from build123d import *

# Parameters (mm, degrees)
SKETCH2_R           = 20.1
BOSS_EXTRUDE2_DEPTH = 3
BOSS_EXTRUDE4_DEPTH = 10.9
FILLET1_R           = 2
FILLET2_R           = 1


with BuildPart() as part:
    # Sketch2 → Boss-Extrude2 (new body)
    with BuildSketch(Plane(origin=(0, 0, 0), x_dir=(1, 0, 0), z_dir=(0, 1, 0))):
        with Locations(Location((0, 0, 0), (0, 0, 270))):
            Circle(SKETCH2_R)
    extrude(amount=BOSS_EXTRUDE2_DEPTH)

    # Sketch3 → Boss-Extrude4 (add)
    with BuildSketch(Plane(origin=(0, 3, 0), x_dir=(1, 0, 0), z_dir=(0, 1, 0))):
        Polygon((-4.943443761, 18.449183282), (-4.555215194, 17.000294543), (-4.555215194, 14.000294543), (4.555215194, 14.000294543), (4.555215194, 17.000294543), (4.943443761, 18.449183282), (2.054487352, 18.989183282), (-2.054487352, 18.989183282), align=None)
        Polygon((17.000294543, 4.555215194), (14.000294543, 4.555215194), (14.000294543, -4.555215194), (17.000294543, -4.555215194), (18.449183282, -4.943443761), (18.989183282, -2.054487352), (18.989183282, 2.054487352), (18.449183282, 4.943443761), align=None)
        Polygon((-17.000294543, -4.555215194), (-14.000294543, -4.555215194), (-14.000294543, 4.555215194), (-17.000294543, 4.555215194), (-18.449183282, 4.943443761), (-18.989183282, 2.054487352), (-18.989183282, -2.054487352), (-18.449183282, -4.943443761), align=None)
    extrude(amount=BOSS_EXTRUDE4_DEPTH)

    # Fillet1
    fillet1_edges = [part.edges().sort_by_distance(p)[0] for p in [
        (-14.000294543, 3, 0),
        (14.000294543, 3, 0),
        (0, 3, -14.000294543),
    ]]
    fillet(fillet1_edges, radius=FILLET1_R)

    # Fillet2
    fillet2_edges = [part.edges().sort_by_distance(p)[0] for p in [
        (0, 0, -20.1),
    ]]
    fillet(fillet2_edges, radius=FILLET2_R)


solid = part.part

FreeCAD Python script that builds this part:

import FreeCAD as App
import Part
import Sketcher
Q = App.Units.Quantity


def edges_at(feature, points):
    """Names of the edges that pass closest to the given points."""
    edges = feature.Shape.Edges
    near = lambda p: min(range(len(edges)), key=lambda i: edges[i].distToShape(Part.Vertex(*p))[0])
    return sorted({f"Edge{near(p) + 1}" for p in points})


def add_polygon(sketch, points):
    """Adds a closed chain of lines whose ends are joined by coincident constraints."""
    first, n = sketch.GeometryCount, len(points)
    for a, b in zip(points, points[1:] + points[:1]):
        sketch.addGeometry(Part.LineSegment(App.Vector(*a, 0), App.Vector(*b, 0)), False)
    for i in range(n):
        sketch.addConstraint(Sketcher.Constraint("Coincident", first + i, 2, first + (i + 1) % n, 1))

doc = App.newDocument("Part")
body = doc.addObject("PartDesign::Body", "Body")

sketch1 = body.newObject("Sketcher::SketchObject", "Sketch")
sketch1.AttachmentSupport = (doc.getObject("XZ_Plane"), [""])
sketch1.MapMode = "FlatFace"
sketch1.addGeometry(Part.Circle(App.Vector(0, 0, 0), App.Vector(0, 0, 1), 20.1), False)
sketch1.addConstraint(Sketcher.Constraint("Coincident", 0, 3, -1, 1))
sketch1.addConstraint(Sketcher.Constraint("Diameter", 0, Q("40.2 mm")))
pad1 = body.newObject("PartDesign::Pad", "Pad")
pad1.Profile = sketch1
pad1.Length = 3
pad1.Reversed = True

sketch2 = body.newObject("Sketcher::SketchObject", "Sketch001")
sketch2.AttachmentSupport = (doc.getObject("XZ_Plane"), [""])
sketch2.MapMode = "FlatFace"
sketch2.AttachmentOffset = App.Placement(App.Vector(0, 0, -3), App.Rotation())
add_polygon(sketch2, [(-4.943444, -18.449183), (-4.555215, -17.000295), (-4.555215, -14.000295), (4.555215, -14.000295), (4.555215, -17.000295), (4.943444, -18.449183), (2.054487, -18.989183), (-2.054487, -18.989183)])
add_polygon(sketch2, [(17.000295, -4.555215), (14.000295, -4.555215), (14.000295, 4.555215), (17.000295, 4.555215), (18.449183, 4.943444), (18.989183, 2.054487), (18.989183, -2.054487), (18.449183, -4.943444)])
add_polygon(sketch2, [(-17.000295, 4.555215), (-14.000295, 4.555215), (-14.000295, -4.555215), (-17.000295, -4.555215), (-18.449183, -4.943444), (-18.989183, -2.054487), (-18.989183, 2.054487), (-18.449183, 4.943444)])
sketch2.addConstraint(Sketcher.Constraint("Vertical", 1))
sketch2.addConstraint(Sketcher.Constraint("Horizontal", 2))
sketch2.addConstraint(Sketcher.Constraint("Vertical", 3))
sketch2.addConstraint(Sketcher.Constraint("Horizontal", 6))
sketch2.addConstraint(Sketcher.Constraint("Horizontal", 8))
sketch2.addConstraint(Sketcher.Constraint("Vertical", 9))
sketch2.addConstraint(Sketcher.Constraint("Horizontal", 10))
sketch2.addConstraint(Sketcher.Constraint("Vertical", 13))
sketch2.addConstraint(Sketcher.Constraint("Horizontal", 16))
sketch2.addConstraint(Sketcher.Constraint("Vertical", 17))
sketch2.addConstraint(Sketcher.Constraint("Horizontal", 18))
sketch2.addConstraint(Sketcher.Constraint("Vertical", 21))
sketch2.addConstraint(Sketcher.Constraint("Symmetric", 8, 2, 16, 2, -1, 1))
sketch2.addConstraint(Sketcher.Constraint("Symmetric", 10, 2, 18, 2, -1, 1))
sketch2.addConstraint(Sketcher.Constraint("Symmetric", 11, 2, 19, 2, -1, 1))
sketch2.addConstraint(Sketcher.Constraint("Symmetric", 12, 2, 20, 2, -1, 1))
sketch2.addConstraint(Sketcher.Constraint("Symmetric", 14, 2, 22, 2, -1, 1))
sketch2.addConstraint(Sketcher.Constraint("Symmetric", 0, 2, 3, 2, -2))
sketch2.addConstraint(Sketcher.Constraint("Symmetric", 4, 2, 7, 2, -2))
sketch2.addConstraint(Sketcher.Constraint("Symmetric", 15, 2, 18, 2, -2))
sketch2.addConstraint(Sketcher.Constraint("Symmetric", 14, 2, 19, 2, -2))
sketch2.addConstraint(Sketcher.Constraint("Perpendicular", 4, 11))
sketch2.addConstraint(Sketcher.Constraint("Perpendicular", 5, 12))
sketch2.addConstraint(Sketcher.Constraint("Perpendicular", 7, 14))
sketch2.addConstraint(Sketcher.Constraint("Parallel", 14, 22))
sketch2.addConstraint(Sketcher.Constraint("Parallel", 15, 23))
sketch2.addConstraint(Sketcher.Constraint("Horizontal", 13, 2, 20, 2))
sketch2.addConstraint(Sketcher.Constraint("Equal", 18, 1))
sketch2.addConstraint(Sketcher.Constraint("Equal", 2, 9))
sketch2.addConstraint(Sketcher.Constraint("Equal", 6, 13))
sketch2.addConstraint(Sketcher.Constraint("Equal", 4, 11))
sketch2.addConstraint(Sketcher.Constraint("DistanceX", 8, 2, 8, 1, Q("3 mm")))
sketch2.addConstraint(Sketcher.Constraint("Angle", 0, Q("75 deg")))
sketch2.addConstraint(Sketcher.Constraint("Distance", 0, Q("1.5 mm")))
sketch2.addConstraint(Sketcher.Constraint("DistanceY", 5, 2, 4, 2, Q("0.54 mm")))
sketch2.addConstraint(Sketcher.Constraint("DistanceX", 2, 1, 2, 2, Q("9.11043 mm")))
sketch2.addConstraint(Sketcher.Constraint("DistanceY", 4, 2, 9, 2, Q("23.004398 mm")))
sketch2.addConstraint(Sketcher.Constraint("Distance", 5, Q("2.938991 mm")))
sketch2.addConstraint(Sketcher.Constraint("DistanceX", 2, 2, 8, 2, Q("9.445079 mm")))
pad2 = body.newObject("PartDesign::Pad", "Pad001")
pad2.Profile = sketch2
pad2.Length = 10.9
pad2.Reversed = True
doc.recompute()

fillet = body.newObject("PartDesign::Fillet", "Fillet")
fillet.Base = (pad2, edges_at(pad2, [(-14, 3, 0), (14, 3, 0), (0, 3, -14)]))
fillet.Radius = 2
doc.recompute()

fillet2 = body.newObject("PartDesign::Fillet", "Fillet001")
fillet2.Base = (fillet, edges_at(fillet, [(0, 0, -20.1)]))
fillet2.Radius = 1

doc.recompute()
